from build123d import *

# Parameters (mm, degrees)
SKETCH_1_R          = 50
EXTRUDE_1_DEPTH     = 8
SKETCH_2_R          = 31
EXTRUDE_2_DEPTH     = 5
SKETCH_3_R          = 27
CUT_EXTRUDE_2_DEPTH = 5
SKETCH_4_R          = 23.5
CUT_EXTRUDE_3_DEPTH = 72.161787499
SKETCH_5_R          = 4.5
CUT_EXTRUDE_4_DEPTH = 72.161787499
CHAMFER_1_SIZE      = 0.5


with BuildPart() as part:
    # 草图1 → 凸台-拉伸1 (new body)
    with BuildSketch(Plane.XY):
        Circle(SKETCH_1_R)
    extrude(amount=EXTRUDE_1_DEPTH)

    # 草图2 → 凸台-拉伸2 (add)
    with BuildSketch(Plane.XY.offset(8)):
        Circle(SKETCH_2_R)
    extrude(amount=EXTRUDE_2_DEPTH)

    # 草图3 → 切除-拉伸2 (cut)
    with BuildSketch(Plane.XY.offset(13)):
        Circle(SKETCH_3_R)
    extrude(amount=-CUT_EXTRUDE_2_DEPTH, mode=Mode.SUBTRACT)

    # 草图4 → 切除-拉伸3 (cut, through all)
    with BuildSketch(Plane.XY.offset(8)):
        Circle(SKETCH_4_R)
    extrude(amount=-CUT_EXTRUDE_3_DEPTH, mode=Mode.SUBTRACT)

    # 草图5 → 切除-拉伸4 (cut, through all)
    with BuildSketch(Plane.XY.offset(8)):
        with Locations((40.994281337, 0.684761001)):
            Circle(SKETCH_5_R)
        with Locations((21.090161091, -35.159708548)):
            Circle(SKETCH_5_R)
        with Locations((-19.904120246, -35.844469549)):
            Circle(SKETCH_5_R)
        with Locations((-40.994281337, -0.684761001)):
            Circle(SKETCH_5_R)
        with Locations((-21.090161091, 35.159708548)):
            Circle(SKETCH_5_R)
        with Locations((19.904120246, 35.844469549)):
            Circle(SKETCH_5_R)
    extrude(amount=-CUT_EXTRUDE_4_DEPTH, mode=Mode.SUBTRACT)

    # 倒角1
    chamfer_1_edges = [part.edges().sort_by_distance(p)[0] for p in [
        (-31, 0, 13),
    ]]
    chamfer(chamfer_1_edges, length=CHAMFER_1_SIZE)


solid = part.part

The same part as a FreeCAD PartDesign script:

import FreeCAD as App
import Part
import Sketcher


def edges_at(feature, points):
    """Names of the edges that pass closest to the given points."""
    edges = feature.Shape.Edges
    near = lambda p: min(range(len(edges)), key=lambda i: edges[i].distToShape(Part.Vertex(*p))[0])
    return sorted({f"Edge{near(p) + 1}" for p in points})

doc = App.newDocument("Part")
body = doc.addObject("PartDesign::Body", "Body")

# Sketch on XY plane
sketch1 = body.newObject("Sketcher::SketchObject", "Sketch")
sketch1.AttachmentSupport = (doc.getObject("XY_Plane"), [""])
sketch1.MapMode = "FlatFace"
sketch1.addGeometry(Part.Circle(App.Vector(0, 0, 0), App.Vector(0, 0, 1), 50), False)
sketch1.addConstraint([
    Sketcher.Constraint("Coincident", 0, 3, -1, 1),
    Sketcher.Constraint("Diameter", 0, 100.0),
])
pad1 = body.newObject("PartDesign::Pad", "Pad")
pad1.Profile = sketch1
pad1.Length = 8

# Sketch on XY plane
sketch2 = body.newObject("Sketcher::SketchObject", "Sketch001")
sketch2.AttachmentSupport = (doc.getObject("XY_Plane"), [""])
sketch2.MapMode = "FlatFace"
sketch2.AttachmentOffset = App.Placement(App.Vector(0, 0, 8), App.Rotation())
sketch2.addGeometry(Part.Circle(App.Vector(0, 0, 0), App.Vector(0, 0, 1), 31), False)
sketch2.addConstraint([
    Sketcher.Constraint("Coincident", 0, 3, -1, 1),
    Sketcher.Constraint("Diameter", 0, 62.0),
])
pad2 = body.newObject("PartDesign::Pad", "Pad001")
pad2.Profile = sketch2
pad2.Length = 5

# Sketch on XY plane
sketch3 = body.newObject("Sketcher::SketchObject", "Sketch002")
sketch3.AttachmentSupport = (doc.getObject("XY_Plane"), [""])
sketch3.MapMode = "FlatFace"
sketch3.AttachmentOffset = App.Placement(App.Vector(0, 0, 13), App.Rotation())
sketch3.addGeometry(Part.Circle(App.Vector(0, 0, 0), App.Vector(0, 0, 1), 27), False)
sketch3.addConstraint([
    Sketcher.Constraint("Coincident", 0, 3, -1, 1),
    Sketcher.Constraint("Diameter", 0, 54.0),
])
pocket1 = body.newObject("PartDesign::Pocket", "Pocket")
pocket1.Profile = sketch3
pocket1.Length = 5

# Sketch on XY plane
sketch4 = body.newObject("Sketcher::SketchObject", "Sketch003")
sketch4.AttachmentSupport = (doc.getObject("XY_Plane"), [""])
sketch4.MapMode = "FlatFace"
sketch4.AttachmentOffset = App.Placement(App.Vector(0, 0, 8), App.Rotation())
sketch4.addGeometry(Part.Circle(App.Vector(0, 0, 0), App.Vector(0, 0, 1), 23.5), False)
sketch4.addConstraint([
    Sketcher.Constraint("Coincident", 0, 3, -1, 1),
    Sketcher.Constraint("Diameter", 0, 47.0),
])
pocket2 = body.newObject("PartDesign::Pocket", "Pocket001")
pocket2.Profile = sketch4
pocket2.Type = "ThroughAll"

# Sketch on XY plane
sketch5 = body.newObject("Sketcher::SketchObject", "Sketch004")
sketch5.AttachmentSupport = (doc.getObject("XY_Plane"), [""])
sketch5.MapMode = "FlatFace"
sketch5.AttachmentOffset = App.Placement(App.Vector(0, 0, 8), App.Rotation())
sketch5.addGeometry([
    Part.Circle(App.Vector(40.994281, 0.684761, 0), App.Vector(0, 0, 1), 4.5),  # 0
    Part.Circle(App.Vector(21.090161, -35.159709, 0), App.Vector(0, 0, 1), 4.5),  # 1
    Part.Circle(App.Vector(-19.90412, -35.84447, 0), App.Vector(0, 0, 1), 4.5),  # 2
    Part.Circle(App.Vector(-40.994281, -0.684761, 0), App.Vector(0, 0, 1), 4.5),  # 3
    Part.Circle(App.Vector(-21.090161, 35.159709, 0), App.Vector(0, 0, 1), 4.5),  # 4
    Part.Circle(App.Vector(19.90412, 35.84447, 0), App.Vector(0, 0, 1), 4.5),  # 5
], False)
sketch5.addConstraint([
    Sketcher.Constraint("Equal", 0, 1),
    Sketcher.Constraint("Equal", 1, 2),
    Sketcher.Constraint("Equal", 2, 3),
    Sketcher.Constraint("Equal", 3, 4),
    Sketcher.Constraint("Equal", 4, 5),
    Sketcher.Constraint("Symmetric", 0, 3, 3, 3, -1, 1),
    Sketcher.Constraint("Symmetric", 1, 3, 4, 3, -1, 1),
    Sketcher.Constraint("Symmetric", 2, 3, 5, 3, -1, 1),
    Sketcher.Constraint("Diameter", 0, 9.0),
    Sketcher.Constraint("DistanceX", 2, 3, 0, 3, 60.898402),
    Sketcher.Constraint("DistanceX", -1, 1, 0, 3, 40.994281),
    Sketcher.Constraint("DistanceY", -1, 1, 0, 3, 0.684761),
    Sketcher.Constraint("DistanceX", -1, 1, 1, 3, 21.090161),
    Sketcher.Constraint("DistanceY", 1, 3, -1, 1, 35.159709),
    Sketcher.Constraint("DistanceY", 2, 3, -1, 1, 35.84447),
])
pocket3 = body.newObject("PartDesign::Pocket", "Pocket002")
pocket3.Profile = sketch5
pocket3.Type = "ThroughAll"
doc.recompute()

chamfer = body.newObject("PartDesign::Chamfer", "Chamfer")
chamfer.Base = (pocket3, edges_at(pocket3, [(-31, 0, 13)]))
chamfer.Size = 0.5

doc.recompute()
